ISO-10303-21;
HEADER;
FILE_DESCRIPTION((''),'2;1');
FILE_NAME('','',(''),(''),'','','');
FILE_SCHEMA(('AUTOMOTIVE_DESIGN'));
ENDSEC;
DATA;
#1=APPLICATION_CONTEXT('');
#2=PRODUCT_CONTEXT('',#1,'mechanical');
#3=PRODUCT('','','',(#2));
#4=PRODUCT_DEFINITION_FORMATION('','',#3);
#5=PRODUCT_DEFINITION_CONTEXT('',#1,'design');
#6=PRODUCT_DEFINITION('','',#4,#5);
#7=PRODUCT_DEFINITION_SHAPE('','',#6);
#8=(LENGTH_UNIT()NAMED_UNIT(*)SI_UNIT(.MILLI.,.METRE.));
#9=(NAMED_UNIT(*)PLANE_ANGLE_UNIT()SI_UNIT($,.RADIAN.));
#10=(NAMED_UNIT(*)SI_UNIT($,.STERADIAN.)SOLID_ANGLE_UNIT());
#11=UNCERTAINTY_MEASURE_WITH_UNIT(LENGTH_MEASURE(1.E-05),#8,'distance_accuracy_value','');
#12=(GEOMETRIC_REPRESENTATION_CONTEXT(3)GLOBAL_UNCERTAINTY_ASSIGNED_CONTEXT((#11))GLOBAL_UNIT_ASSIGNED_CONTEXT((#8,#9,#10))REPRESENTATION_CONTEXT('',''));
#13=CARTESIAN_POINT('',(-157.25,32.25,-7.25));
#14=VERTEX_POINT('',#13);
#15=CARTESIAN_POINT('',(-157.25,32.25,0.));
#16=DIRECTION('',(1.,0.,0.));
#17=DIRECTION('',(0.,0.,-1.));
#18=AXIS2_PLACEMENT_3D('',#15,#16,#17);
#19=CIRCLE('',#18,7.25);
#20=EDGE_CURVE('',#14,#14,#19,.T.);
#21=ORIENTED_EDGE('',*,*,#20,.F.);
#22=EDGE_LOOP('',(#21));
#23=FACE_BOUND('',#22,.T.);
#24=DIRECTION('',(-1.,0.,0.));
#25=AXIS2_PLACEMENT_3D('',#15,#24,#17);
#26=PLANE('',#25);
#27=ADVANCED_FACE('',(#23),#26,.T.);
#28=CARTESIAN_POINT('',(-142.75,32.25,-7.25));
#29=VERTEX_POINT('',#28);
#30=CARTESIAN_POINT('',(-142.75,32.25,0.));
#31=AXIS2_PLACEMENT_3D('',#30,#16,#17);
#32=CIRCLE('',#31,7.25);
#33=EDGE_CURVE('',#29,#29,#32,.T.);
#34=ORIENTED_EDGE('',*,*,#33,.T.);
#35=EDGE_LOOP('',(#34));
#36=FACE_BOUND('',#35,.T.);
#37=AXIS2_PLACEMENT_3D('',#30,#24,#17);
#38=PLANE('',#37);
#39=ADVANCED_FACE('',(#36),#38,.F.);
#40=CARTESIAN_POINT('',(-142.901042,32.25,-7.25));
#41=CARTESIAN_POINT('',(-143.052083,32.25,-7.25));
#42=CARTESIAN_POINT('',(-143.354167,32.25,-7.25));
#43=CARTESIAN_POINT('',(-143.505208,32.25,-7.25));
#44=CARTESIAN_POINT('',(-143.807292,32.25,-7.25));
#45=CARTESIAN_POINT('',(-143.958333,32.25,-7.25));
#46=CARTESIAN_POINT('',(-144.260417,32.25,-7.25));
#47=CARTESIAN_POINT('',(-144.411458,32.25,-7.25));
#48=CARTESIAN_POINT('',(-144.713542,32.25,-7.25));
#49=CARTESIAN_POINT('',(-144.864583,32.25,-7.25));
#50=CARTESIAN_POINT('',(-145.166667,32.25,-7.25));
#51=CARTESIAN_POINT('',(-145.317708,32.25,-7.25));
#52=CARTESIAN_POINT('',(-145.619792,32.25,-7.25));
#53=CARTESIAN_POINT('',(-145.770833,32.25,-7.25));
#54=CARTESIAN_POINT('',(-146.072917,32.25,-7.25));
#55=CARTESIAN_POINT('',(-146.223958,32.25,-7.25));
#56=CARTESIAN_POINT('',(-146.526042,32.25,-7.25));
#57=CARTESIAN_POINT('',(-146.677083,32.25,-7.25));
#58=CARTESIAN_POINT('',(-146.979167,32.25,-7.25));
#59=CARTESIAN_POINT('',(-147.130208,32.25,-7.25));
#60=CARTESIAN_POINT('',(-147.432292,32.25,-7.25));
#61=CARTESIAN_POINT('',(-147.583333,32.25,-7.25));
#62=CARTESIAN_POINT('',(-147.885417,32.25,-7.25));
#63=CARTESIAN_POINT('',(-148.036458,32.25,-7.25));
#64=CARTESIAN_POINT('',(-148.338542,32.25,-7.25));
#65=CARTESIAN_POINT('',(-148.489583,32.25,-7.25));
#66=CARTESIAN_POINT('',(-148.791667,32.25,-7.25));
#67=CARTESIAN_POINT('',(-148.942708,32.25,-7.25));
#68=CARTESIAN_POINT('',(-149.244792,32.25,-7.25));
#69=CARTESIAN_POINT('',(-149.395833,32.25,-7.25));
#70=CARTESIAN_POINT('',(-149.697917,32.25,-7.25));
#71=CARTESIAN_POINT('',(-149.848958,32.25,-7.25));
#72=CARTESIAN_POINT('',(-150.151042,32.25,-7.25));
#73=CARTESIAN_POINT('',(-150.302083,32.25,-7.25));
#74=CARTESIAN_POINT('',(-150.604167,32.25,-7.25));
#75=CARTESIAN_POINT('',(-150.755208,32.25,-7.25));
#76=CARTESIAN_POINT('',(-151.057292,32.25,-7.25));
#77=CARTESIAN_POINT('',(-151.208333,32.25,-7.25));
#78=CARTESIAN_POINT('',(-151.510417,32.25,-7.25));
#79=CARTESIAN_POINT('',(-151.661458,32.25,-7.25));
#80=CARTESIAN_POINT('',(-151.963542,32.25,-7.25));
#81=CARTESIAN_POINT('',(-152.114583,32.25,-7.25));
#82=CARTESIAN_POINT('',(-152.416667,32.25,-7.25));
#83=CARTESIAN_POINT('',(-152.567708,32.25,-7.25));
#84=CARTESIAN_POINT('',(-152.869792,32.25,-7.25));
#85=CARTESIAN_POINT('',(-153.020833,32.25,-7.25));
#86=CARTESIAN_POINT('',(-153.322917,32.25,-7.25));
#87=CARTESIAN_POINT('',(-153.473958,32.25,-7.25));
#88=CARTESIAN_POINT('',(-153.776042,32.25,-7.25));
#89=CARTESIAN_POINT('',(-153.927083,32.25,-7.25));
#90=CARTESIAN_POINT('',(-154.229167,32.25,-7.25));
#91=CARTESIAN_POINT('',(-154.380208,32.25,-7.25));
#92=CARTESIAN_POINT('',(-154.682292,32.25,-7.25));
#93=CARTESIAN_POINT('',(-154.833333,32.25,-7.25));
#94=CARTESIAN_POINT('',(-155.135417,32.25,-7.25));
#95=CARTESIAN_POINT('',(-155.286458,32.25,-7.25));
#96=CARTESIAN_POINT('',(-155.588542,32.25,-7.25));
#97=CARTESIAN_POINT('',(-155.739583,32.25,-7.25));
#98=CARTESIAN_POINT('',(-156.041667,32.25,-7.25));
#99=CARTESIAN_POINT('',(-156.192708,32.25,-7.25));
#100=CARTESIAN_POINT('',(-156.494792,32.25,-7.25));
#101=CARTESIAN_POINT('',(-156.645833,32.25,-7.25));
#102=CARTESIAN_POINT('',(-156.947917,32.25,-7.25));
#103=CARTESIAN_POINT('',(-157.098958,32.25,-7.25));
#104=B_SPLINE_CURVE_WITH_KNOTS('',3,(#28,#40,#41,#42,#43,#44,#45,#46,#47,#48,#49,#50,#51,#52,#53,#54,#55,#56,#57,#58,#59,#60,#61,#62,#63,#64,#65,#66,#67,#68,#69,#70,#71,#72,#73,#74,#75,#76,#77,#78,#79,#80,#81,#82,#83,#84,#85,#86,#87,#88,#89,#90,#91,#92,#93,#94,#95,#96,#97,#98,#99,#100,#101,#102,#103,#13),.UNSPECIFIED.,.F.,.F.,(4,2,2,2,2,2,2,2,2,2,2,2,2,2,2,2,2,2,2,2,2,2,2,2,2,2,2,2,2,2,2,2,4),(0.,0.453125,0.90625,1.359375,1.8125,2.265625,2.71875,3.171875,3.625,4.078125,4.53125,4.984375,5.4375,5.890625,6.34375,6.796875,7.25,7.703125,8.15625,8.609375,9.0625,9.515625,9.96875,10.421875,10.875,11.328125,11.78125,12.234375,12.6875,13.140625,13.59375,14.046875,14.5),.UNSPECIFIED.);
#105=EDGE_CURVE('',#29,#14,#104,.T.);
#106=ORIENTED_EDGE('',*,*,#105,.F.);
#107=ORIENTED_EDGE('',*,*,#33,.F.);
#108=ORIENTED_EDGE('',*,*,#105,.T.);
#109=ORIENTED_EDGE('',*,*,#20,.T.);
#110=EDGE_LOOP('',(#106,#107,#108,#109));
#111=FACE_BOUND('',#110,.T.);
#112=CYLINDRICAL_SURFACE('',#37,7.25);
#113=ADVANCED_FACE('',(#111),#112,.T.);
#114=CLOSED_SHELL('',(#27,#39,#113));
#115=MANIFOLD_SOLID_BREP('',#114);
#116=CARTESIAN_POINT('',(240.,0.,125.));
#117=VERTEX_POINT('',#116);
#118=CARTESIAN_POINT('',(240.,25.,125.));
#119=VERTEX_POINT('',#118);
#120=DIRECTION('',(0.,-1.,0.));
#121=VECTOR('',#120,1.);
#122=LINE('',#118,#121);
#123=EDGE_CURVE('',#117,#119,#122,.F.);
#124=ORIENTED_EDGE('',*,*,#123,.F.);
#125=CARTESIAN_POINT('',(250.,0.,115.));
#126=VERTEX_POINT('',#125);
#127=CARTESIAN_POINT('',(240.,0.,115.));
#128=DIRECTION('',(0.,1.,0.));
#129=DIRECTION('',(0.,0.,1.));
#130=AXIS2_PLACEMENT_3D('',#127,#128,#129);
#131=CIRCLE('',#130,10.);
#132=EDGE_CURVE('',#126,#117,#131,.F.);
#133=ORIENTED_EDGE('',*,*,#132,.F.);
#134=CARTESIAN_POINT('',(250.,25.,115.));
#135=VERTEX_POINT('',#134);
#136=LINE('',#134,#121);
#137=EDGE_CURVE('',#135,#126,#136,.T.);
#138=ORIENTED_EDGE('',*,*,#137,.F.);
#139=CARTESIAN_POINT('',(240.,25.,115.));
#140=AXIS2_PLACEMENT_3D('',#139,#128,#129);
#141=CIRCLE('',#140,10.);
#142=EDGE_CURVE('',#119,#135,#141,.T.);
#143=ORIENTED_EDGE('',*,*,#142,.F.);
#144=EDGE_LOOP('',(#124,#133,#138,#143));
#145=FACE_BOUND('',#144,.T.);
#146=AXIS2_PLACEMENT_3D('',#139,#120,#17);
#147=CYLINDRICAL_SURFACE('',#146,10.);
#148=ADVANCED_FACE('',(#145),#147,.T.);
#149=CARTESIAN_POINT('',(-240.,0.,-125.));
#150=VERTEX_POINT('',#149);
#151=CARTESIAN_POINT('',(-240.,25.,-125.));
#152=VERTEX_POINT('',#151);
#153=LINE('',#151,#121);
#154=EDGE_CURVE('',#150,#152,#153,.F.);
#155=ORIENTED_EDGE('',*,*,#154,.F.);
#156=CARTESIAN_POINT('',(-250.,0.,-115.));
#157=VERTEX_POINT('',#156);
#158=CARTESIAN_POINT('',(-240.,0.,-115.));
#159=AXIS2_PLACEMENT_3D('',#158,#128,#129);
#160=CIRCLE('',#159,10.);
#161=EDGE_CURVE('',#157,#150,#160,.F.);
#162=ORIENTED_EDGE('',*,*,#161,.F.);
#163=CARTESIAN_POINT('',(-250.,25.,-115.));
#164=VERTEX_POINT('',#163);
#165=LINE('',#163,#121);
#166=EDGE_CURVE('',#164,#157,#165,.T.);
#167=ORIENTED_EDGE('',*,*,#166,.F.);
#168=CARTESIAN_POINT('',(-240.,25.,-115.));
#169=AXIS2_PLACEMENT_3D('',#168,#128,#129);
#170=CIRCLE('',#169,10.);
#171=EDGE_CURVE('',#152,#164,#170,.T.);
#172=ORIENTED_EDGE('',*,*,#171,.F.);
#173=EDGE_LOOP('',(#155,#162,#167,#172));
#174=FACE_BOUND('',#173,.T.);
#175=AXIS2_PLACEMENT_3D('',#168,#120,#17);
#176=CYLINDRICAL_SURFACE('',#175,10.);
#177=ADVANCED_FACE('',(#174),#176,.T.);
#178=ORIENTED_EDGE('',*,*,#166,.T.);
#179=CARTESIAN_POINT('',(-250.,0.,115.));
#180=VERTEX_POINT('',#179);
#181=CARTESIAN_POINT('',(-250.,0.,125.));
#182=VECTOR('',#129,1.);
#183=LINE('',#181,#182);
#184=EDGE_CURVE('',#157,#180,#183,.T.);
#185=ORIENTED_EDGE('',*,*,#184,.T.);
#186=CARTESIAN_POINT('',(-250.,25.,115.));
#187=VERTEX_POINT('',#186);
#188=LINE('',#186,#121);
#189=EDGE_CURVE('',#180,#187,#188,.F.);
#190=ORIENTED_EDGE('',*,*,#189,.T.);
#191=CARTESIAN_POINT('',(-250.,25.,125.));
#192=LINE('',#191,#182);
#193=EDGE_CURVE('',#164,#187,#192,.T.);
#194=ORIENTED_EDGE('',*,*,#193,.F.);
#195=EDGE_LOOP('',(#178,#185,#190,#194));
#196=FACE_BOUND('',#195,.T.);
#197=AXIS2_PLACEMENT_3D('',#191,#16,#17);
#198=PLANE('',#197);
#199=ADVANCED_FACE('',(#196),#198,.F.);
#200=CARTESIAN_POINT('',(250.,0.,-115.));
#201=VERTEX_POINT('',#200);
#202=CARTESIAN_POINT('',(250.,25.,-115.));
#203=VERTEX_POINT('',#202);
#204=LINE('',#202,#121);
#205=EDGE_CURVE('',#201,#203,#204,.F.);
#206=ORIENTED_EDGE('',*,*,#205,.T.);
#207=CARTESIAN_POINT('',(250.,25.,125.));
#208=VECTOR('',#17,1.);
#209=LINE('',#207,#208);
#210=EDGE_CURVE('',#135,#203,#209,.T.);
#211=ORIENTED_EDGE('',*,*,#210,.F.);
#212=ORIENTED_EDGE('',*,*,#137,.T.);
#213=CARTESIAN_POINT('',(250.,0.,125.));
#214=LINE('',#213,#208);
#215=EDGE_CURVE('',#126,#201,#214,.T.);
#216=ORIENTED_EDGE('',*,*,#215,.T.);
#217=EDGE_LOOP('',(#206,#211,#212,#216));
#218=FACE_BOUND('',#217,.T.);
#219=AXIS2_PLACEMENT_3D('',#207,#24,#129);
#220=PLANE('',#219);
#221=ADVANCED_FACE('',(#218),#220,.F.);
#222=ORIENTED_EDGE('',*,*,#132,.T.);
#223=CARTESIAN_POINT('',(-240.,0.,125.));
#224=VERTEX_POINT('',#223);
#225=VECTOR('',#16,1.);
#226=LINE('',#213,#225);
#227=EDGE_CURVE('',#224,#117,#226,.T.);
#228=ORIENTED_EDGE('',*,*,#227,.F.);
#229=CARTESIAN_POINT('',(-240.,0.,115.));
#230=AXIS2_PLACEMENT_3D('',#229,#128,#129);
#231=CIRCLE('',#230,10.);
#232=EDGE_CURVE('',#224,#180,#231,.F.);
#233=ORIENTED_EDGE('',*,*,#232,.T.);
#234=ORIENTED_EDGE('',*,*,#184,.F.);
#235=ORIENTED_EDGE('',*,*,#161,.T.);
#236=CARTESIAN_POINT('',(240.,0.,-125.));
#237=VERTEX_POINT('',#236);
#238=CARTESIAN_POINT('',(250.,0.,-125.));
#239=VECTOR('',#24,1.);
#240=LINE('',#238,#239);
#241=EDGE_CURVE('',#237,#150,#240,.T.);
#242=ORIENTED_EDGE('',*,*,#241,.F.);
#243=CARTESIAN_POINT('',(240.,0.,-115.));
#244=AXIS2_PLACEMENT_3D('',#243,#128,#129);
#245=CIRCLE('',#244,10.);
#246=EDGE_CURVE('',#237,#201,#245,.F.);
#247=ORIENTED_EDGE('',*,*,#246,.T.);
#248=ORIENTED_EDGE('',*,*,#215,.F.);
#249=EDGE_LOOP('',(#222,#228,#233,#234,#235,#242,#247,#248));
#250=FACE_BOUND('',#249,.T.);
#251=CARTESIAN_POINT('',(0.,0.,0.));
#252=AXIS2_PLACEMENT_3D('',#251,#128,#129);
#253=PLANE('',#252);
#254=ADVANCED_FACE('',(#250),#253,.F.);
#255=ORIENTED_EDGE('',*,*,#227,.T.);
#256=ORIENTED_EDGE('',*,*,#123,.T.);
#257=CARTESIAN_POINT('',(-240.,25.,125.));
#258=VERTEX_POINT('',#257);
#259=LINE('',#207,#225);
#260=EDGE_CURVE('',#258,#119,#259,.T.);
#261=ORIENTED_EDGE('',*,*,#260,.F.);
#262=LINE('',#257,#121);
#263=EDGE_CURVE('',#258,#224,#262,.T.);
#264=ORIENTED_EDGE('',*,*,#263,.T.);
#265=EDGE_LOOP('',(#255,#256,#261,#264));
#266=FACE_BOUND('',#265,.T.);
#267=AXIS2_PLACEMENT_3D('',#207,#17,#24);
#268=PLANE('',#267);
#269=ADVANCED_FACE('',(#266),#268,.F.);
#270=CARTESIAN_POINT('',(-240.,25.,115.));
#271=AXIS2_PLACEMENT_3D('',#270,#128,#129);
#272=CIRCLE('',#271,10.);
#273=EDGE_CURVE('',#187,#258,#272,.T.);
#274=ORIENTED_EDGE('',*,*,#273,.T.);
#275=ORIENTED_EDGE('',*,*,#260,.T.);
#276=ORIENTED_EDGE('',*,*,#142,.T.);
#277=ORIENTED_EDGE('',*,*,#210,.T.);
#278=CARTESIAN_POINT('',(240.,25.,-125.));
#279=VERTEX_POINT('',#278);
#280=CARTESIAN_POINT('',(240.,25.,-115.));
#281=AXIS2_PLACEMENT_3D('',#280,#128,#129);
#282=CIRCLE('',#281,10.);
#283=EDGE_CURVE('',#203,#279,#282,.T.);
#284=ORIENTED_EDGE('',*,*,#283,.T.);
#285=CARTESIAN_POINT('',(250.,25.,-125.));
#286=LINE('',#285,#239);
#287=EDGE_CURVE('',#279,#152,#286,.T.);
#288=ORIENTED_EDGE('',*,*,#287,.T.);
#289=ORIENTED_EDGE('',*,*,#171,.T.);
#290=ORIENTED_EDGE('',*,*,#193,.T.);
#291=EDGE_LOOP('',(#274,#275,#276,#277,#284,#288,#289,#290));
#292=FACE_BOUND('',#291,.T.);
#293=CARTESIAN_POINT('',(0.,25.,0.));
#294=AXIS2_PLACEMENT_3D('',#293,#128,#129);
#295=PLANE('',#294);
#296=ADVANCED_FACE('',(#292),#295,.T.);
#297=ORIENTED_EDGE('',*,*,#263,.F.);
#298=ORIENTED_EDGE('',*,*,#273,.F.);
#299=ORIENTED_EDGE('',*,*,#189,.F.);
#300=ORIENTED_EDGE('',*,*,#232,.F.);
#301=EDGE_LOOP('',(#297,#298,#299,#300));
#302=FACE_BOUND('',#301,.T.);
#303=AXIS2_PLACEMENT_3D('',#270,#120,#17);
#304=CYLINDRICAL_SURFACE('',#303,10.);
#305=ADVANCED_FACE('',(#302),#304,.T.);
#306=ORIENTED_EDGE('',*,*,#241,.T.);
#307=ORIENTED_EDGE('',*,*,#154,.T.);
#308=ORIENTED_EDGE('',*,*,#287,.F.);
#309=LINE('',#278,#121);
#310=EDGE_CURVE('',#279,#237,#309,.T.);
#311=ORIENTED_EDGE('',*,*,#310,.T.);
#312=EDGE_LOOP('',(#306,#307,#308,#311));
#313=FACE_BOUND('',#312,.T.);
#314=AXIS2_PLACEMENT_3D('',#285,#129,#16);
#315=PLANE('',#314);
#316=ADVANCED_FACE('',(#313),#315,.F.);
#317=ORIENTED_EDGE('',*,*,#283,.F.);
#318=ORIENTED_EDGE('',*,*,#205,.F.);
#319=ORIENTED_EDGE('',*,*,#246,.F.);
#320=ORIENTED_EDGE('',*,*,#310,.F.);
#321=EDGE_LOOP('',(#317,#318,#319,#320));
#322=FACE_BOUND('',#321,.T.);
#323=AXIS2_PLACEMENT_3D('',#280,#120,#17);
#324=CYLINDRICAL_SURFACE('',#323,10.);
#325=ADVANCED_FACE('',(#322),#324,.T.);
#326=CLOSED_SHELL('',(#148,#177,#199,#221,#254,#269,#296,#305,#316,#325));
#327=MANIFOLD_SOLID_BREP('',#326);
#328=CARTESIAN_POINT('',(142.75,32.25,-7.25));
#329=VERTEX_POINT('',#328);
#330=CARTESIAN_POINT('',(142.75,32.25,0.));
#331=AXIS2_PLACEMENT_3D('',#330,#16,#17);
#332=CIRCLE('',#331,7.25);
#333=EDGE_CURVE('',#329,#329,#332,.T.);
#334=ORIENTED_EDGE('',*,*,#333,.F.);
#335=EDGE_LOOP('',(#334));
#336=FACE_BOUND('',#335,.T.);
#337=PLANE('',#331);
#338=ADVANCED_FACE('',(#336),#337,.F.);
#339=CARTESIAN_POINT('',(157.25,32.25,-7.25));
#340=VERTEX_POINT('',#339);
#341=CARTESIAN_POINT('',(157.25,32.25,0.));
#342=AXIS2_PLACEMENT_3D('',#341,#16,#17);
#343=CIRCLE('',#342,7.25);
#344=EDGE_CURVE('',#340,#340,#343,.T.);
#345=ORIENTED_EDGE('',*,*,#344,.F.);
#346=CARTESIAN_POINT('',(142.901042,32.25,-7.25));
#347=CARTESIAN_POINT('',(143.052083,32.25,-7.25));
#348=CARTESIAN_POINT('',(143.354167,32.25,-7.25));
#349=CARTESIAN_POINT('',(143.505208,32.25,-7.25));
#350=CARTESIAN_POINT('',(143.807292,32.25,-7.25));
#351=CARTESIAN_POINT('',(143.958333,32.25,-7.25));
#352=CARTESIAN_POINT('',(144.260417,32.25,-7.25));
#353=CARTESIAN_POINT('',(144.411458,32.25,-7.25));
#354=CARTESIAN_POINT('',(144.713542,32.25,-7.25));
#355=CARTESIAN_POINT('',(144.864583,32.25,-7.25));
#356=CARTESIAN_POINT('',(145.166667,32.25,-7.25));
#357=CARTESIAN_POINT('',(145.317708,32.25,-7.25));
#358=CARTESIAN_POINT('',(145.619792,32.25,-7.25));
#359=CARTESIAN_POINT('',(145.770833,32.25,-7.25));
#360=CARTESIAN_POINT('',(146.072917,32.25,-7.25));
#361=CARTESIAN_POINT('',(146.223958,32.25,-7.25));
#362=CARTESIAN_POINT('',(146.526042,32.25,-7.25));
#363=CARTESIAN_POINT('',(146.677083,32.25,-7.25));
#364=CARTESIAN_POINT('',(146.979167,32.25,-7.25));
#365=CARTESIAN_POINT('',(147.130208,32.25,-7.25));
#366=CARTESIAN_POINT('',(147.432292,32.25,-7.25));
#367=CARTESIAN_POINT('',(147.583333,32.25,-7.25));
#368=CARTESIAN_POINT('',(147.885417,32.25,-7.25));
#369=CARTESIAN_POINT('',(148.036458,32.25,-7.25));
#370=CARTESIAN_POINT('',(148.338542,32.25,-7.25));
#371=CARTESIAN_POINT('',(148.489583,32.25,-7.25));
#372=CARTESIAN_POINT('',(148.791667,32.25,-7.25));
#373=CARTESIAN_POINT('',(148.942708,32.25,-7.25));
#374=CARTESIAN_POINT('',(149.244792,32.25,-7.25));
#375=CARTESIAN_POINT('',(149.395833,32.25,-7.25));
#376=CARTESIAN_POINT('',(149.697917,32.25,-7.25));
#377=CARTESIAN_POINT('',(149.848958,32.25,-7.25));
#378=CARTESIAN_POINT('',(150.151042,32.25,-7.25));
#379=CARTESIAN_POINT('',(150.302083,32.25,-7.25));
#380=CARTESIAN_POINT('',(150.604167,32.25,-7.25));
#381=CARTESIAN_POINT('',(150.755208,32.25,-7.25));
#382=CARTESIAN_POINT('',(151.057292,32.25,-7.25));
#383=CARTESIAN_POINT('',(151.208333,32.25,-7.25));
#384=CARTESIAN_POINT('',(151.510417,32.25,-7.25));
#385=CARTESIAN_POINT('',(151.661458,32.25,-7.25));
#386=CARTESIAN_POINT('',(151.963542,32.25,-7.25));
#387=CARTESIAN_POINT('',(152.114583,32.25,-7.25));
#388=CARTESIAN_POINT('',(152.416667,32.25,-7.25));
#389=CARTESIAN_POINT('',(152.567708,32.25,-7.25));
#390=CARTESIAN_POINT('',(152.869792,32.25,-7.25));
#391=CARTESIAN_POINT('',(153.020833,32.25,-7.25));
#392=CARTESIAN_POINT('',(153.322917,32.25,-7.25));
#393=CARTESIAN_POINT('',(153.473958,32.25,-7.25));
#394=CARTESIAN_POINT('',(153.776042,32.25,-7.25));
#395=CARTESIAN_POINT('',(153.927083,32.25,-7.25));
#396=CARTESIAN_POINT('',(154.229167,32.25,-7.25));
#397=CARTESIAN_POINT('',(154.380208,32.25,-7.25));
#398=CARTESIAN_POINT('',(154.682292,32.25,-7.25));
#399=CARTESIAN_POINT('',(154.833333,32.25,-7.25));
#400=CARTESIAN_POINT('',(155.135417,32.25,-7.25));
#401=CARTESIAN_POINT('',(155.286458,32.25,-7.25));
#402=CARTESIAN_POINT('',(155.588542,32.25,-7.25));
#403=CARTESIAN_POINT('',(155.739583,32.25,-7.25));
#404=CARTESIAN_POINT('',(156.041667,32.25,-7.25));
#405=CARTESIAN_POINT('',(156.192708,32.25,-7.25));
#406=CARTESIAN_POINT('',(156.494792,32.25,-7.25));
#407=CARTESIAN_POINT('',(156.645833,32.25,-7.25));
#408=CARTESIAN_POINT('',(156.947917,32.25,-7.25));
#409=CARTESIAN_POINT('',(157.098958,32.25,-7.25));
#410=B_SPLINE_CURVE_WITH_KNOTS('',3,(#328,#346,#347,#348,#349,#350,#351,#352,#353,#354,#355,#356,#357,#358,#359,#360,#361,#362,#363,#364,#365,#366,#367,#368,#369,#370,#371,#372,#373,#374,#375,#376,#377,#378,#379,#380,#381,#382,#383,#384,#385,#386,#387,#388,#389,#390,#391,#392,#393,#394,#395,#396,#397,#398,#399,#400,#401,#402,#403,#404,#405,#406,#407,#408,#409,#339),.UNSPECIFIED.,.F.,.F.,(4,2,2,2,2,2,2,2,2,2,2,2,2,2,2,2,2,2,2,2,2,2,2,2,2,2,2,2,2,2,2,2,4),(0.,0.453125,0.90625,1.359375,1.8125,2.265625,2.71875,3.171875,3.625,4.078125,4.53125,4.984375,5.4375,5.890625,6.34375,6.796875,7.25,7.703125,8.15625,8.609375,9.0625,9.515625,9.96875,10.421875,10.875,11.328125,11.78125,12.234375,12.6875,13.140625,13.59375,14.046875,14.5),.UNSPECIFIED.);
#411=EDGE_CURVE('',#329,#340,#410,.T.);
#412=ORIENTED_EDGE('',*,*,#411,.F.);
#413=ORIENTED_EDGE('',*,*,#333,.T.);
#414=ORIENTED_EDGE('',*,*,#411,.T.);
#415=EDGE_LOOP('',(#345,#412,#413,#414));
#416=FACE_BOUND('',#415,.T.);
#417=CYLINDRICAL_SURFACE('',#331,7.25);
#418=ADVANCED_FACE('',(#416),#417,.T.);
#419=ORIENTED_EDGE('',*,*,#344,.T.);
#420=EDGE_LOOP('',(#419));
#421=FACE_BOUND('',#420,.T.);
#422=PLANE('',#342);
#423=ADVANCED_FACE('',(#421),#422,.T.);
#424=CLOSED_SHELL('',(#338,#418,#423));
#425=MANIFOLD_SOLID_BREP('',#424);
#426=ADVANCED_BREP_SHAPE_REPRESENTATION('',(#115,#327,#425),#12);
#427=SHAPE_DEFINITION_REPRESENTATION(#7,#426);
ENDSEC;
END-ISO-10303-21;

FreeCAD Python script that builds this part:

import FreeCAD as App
import Part
import Sketcher


def edges_at(feature, points):
    """Names of the edges that pass closest to the given points."""
    edges = feature.Shape.Edges
    near = lambda p: min(range(len(edges)), key=lambda i: edges[i].distToShape(Part.Vertex(*p))[0])
    return sorted({f"Edge{near(p) + 1}" for p in points})


def add_polygon(sketch, points):
    """Adds a closed chain of lines whose ends are joined by coincident constraints."""
    first, n = sketch.GeometryCount, len(points)
    for a, b in zip(points, points[1:] + points[:1]):
        sketch.addGeometry(Part.LineSegment(App.Vector(*a, 0), App.Vector(*b, 0)), False)
    for i in range(n):
        sketch.addConstraint(Sketcher.Constraint("Coincident", first + i, 2, first + (i + 1) % n, 1))

doc = App.newDocument("Part")
params = doc.addObject("Spreadsheet::Sheet", "Params")
for row, (alias, value) in enumerate([
    ("sketch1_width", "500 mm"),
    ("sketch1_height", "250 mm"),
    ("pad1_length", "25 mm"),
    ("fillet_radius", "10 mm"),
    ("sketch2_diameter", "14.5 mm"),
    ("pad2_length", "7.25 mm"),
    ("pad2_length2", "7.25 mm"),
], start=1):
    params.set(f"A{row}", alias)
    params.set(f"B{row}", "=" + value)
    params.setAlias(f"B{row}", alias)

body = doc.addObject("PartDesign::Body", "Body")

sketch1 = body.newObject("Sketcher::SketchObject", "Sketch")
sketch1.AttachmentSupport = (doc.getObject("XZ_Plane"), [""])
sketch1.MapMode = "FlatFace"
add_polygon(sketch1, [(-250, -125), (-250, 125), (250, 125), (250, -125)])
sketch1.addConstraint([
    Sketcher.Constraint("Vertical", 0),
    Sketcher.Constraint("Horizontal", 1),
    Sketcher.Constraint("Vertical", 2),
    Sketcher.Constraint("Horizontal", 3),
    Sketcher.Constraint("Symmetric", 0, 2, 2, 2, -1, 1),
    Sketcher.Constraint("DistanceX", 1, 1, 1, 2, 500.0),
    Sketcher.Constraint("DistanceY", 0, 1, 0, 2, 250.0),
])
sketch1.setExpression("Constraints[9]", "Params.sketch1_width")
sketch1.setExpression("Constraints[10]", "Params.sketch1_height")
pad1 = body.newObject("PartDesign::Pad", "Pad")
pad1.Profile = sketch1
pad1.setExpression("Length", "Params.pad1_length")
pad1.Reversed = True
doc.recompute()

fillet = body.newObject("PartDesign::Fillet", "Fillet")
fillet.Base = (pad1, edges_at(pad1, [
    (-250, 12.5, -125),
    (250, 12.5, -125),
    (250, 12.5, 125),
    (-250, 12.5, 125),
]))
fillet.setExpression("Radius", "Params.fillet_radius")
body2 = doc.addObject("PartDesign::Body", "Body001")

sketch2 = body2.newObject("Sketcher::SketchObject", "Sketch001")
sketch2.AttachmentSupport = (doc.getObject("YZ_Plane001"), [""])
sketch2.MapMode = "FlatFace"
sketch2.AttachmentOffset = App.Placement(App.Vector(0, 0, 150), App.Rotation())
sketch2.addGeometry(Part.Circle(App.Vector(32.25, 0, 0), App.Vector(0, 0, 1), 7.25), False)
sketch2.addConstraint([
    Sketcher.Constraint("PointOnObject", 0, 3, -1),
    Sketcher.Constraint("Diameter", 0, 14.5),
    Sketcher.Constraint("DistanceX", -1, 1, 0, 3, 32.25),
])
sketch2.setExpression("Constraints[1]", "Params.sketch2_diameter")
pad2 = body2.newObject("PartDesign::Pad", "Pad001")
pad2.Profile = sketch2
pad2.Type = "TwoLengths"
pad2.setExpression("Length", "Params.pad2_length")
pad2.setExpression("Length2", "Params.pad2_length2")
body3 = doc.addObject("PartDesign::Body", "Body002")
doc.recompute()

mirroring = doc.addObject("Part::Mirroring", "Mirroring")
mirroring.Source = body2
mirroring.Base = App.Vector(0, 0, 0)
mirroring.Normal = App.Vector(1, 0, 0)
body3.BaseFeature = mirroring
doc.recompute()
mirroring.Visibility = False

doc.recompute()
